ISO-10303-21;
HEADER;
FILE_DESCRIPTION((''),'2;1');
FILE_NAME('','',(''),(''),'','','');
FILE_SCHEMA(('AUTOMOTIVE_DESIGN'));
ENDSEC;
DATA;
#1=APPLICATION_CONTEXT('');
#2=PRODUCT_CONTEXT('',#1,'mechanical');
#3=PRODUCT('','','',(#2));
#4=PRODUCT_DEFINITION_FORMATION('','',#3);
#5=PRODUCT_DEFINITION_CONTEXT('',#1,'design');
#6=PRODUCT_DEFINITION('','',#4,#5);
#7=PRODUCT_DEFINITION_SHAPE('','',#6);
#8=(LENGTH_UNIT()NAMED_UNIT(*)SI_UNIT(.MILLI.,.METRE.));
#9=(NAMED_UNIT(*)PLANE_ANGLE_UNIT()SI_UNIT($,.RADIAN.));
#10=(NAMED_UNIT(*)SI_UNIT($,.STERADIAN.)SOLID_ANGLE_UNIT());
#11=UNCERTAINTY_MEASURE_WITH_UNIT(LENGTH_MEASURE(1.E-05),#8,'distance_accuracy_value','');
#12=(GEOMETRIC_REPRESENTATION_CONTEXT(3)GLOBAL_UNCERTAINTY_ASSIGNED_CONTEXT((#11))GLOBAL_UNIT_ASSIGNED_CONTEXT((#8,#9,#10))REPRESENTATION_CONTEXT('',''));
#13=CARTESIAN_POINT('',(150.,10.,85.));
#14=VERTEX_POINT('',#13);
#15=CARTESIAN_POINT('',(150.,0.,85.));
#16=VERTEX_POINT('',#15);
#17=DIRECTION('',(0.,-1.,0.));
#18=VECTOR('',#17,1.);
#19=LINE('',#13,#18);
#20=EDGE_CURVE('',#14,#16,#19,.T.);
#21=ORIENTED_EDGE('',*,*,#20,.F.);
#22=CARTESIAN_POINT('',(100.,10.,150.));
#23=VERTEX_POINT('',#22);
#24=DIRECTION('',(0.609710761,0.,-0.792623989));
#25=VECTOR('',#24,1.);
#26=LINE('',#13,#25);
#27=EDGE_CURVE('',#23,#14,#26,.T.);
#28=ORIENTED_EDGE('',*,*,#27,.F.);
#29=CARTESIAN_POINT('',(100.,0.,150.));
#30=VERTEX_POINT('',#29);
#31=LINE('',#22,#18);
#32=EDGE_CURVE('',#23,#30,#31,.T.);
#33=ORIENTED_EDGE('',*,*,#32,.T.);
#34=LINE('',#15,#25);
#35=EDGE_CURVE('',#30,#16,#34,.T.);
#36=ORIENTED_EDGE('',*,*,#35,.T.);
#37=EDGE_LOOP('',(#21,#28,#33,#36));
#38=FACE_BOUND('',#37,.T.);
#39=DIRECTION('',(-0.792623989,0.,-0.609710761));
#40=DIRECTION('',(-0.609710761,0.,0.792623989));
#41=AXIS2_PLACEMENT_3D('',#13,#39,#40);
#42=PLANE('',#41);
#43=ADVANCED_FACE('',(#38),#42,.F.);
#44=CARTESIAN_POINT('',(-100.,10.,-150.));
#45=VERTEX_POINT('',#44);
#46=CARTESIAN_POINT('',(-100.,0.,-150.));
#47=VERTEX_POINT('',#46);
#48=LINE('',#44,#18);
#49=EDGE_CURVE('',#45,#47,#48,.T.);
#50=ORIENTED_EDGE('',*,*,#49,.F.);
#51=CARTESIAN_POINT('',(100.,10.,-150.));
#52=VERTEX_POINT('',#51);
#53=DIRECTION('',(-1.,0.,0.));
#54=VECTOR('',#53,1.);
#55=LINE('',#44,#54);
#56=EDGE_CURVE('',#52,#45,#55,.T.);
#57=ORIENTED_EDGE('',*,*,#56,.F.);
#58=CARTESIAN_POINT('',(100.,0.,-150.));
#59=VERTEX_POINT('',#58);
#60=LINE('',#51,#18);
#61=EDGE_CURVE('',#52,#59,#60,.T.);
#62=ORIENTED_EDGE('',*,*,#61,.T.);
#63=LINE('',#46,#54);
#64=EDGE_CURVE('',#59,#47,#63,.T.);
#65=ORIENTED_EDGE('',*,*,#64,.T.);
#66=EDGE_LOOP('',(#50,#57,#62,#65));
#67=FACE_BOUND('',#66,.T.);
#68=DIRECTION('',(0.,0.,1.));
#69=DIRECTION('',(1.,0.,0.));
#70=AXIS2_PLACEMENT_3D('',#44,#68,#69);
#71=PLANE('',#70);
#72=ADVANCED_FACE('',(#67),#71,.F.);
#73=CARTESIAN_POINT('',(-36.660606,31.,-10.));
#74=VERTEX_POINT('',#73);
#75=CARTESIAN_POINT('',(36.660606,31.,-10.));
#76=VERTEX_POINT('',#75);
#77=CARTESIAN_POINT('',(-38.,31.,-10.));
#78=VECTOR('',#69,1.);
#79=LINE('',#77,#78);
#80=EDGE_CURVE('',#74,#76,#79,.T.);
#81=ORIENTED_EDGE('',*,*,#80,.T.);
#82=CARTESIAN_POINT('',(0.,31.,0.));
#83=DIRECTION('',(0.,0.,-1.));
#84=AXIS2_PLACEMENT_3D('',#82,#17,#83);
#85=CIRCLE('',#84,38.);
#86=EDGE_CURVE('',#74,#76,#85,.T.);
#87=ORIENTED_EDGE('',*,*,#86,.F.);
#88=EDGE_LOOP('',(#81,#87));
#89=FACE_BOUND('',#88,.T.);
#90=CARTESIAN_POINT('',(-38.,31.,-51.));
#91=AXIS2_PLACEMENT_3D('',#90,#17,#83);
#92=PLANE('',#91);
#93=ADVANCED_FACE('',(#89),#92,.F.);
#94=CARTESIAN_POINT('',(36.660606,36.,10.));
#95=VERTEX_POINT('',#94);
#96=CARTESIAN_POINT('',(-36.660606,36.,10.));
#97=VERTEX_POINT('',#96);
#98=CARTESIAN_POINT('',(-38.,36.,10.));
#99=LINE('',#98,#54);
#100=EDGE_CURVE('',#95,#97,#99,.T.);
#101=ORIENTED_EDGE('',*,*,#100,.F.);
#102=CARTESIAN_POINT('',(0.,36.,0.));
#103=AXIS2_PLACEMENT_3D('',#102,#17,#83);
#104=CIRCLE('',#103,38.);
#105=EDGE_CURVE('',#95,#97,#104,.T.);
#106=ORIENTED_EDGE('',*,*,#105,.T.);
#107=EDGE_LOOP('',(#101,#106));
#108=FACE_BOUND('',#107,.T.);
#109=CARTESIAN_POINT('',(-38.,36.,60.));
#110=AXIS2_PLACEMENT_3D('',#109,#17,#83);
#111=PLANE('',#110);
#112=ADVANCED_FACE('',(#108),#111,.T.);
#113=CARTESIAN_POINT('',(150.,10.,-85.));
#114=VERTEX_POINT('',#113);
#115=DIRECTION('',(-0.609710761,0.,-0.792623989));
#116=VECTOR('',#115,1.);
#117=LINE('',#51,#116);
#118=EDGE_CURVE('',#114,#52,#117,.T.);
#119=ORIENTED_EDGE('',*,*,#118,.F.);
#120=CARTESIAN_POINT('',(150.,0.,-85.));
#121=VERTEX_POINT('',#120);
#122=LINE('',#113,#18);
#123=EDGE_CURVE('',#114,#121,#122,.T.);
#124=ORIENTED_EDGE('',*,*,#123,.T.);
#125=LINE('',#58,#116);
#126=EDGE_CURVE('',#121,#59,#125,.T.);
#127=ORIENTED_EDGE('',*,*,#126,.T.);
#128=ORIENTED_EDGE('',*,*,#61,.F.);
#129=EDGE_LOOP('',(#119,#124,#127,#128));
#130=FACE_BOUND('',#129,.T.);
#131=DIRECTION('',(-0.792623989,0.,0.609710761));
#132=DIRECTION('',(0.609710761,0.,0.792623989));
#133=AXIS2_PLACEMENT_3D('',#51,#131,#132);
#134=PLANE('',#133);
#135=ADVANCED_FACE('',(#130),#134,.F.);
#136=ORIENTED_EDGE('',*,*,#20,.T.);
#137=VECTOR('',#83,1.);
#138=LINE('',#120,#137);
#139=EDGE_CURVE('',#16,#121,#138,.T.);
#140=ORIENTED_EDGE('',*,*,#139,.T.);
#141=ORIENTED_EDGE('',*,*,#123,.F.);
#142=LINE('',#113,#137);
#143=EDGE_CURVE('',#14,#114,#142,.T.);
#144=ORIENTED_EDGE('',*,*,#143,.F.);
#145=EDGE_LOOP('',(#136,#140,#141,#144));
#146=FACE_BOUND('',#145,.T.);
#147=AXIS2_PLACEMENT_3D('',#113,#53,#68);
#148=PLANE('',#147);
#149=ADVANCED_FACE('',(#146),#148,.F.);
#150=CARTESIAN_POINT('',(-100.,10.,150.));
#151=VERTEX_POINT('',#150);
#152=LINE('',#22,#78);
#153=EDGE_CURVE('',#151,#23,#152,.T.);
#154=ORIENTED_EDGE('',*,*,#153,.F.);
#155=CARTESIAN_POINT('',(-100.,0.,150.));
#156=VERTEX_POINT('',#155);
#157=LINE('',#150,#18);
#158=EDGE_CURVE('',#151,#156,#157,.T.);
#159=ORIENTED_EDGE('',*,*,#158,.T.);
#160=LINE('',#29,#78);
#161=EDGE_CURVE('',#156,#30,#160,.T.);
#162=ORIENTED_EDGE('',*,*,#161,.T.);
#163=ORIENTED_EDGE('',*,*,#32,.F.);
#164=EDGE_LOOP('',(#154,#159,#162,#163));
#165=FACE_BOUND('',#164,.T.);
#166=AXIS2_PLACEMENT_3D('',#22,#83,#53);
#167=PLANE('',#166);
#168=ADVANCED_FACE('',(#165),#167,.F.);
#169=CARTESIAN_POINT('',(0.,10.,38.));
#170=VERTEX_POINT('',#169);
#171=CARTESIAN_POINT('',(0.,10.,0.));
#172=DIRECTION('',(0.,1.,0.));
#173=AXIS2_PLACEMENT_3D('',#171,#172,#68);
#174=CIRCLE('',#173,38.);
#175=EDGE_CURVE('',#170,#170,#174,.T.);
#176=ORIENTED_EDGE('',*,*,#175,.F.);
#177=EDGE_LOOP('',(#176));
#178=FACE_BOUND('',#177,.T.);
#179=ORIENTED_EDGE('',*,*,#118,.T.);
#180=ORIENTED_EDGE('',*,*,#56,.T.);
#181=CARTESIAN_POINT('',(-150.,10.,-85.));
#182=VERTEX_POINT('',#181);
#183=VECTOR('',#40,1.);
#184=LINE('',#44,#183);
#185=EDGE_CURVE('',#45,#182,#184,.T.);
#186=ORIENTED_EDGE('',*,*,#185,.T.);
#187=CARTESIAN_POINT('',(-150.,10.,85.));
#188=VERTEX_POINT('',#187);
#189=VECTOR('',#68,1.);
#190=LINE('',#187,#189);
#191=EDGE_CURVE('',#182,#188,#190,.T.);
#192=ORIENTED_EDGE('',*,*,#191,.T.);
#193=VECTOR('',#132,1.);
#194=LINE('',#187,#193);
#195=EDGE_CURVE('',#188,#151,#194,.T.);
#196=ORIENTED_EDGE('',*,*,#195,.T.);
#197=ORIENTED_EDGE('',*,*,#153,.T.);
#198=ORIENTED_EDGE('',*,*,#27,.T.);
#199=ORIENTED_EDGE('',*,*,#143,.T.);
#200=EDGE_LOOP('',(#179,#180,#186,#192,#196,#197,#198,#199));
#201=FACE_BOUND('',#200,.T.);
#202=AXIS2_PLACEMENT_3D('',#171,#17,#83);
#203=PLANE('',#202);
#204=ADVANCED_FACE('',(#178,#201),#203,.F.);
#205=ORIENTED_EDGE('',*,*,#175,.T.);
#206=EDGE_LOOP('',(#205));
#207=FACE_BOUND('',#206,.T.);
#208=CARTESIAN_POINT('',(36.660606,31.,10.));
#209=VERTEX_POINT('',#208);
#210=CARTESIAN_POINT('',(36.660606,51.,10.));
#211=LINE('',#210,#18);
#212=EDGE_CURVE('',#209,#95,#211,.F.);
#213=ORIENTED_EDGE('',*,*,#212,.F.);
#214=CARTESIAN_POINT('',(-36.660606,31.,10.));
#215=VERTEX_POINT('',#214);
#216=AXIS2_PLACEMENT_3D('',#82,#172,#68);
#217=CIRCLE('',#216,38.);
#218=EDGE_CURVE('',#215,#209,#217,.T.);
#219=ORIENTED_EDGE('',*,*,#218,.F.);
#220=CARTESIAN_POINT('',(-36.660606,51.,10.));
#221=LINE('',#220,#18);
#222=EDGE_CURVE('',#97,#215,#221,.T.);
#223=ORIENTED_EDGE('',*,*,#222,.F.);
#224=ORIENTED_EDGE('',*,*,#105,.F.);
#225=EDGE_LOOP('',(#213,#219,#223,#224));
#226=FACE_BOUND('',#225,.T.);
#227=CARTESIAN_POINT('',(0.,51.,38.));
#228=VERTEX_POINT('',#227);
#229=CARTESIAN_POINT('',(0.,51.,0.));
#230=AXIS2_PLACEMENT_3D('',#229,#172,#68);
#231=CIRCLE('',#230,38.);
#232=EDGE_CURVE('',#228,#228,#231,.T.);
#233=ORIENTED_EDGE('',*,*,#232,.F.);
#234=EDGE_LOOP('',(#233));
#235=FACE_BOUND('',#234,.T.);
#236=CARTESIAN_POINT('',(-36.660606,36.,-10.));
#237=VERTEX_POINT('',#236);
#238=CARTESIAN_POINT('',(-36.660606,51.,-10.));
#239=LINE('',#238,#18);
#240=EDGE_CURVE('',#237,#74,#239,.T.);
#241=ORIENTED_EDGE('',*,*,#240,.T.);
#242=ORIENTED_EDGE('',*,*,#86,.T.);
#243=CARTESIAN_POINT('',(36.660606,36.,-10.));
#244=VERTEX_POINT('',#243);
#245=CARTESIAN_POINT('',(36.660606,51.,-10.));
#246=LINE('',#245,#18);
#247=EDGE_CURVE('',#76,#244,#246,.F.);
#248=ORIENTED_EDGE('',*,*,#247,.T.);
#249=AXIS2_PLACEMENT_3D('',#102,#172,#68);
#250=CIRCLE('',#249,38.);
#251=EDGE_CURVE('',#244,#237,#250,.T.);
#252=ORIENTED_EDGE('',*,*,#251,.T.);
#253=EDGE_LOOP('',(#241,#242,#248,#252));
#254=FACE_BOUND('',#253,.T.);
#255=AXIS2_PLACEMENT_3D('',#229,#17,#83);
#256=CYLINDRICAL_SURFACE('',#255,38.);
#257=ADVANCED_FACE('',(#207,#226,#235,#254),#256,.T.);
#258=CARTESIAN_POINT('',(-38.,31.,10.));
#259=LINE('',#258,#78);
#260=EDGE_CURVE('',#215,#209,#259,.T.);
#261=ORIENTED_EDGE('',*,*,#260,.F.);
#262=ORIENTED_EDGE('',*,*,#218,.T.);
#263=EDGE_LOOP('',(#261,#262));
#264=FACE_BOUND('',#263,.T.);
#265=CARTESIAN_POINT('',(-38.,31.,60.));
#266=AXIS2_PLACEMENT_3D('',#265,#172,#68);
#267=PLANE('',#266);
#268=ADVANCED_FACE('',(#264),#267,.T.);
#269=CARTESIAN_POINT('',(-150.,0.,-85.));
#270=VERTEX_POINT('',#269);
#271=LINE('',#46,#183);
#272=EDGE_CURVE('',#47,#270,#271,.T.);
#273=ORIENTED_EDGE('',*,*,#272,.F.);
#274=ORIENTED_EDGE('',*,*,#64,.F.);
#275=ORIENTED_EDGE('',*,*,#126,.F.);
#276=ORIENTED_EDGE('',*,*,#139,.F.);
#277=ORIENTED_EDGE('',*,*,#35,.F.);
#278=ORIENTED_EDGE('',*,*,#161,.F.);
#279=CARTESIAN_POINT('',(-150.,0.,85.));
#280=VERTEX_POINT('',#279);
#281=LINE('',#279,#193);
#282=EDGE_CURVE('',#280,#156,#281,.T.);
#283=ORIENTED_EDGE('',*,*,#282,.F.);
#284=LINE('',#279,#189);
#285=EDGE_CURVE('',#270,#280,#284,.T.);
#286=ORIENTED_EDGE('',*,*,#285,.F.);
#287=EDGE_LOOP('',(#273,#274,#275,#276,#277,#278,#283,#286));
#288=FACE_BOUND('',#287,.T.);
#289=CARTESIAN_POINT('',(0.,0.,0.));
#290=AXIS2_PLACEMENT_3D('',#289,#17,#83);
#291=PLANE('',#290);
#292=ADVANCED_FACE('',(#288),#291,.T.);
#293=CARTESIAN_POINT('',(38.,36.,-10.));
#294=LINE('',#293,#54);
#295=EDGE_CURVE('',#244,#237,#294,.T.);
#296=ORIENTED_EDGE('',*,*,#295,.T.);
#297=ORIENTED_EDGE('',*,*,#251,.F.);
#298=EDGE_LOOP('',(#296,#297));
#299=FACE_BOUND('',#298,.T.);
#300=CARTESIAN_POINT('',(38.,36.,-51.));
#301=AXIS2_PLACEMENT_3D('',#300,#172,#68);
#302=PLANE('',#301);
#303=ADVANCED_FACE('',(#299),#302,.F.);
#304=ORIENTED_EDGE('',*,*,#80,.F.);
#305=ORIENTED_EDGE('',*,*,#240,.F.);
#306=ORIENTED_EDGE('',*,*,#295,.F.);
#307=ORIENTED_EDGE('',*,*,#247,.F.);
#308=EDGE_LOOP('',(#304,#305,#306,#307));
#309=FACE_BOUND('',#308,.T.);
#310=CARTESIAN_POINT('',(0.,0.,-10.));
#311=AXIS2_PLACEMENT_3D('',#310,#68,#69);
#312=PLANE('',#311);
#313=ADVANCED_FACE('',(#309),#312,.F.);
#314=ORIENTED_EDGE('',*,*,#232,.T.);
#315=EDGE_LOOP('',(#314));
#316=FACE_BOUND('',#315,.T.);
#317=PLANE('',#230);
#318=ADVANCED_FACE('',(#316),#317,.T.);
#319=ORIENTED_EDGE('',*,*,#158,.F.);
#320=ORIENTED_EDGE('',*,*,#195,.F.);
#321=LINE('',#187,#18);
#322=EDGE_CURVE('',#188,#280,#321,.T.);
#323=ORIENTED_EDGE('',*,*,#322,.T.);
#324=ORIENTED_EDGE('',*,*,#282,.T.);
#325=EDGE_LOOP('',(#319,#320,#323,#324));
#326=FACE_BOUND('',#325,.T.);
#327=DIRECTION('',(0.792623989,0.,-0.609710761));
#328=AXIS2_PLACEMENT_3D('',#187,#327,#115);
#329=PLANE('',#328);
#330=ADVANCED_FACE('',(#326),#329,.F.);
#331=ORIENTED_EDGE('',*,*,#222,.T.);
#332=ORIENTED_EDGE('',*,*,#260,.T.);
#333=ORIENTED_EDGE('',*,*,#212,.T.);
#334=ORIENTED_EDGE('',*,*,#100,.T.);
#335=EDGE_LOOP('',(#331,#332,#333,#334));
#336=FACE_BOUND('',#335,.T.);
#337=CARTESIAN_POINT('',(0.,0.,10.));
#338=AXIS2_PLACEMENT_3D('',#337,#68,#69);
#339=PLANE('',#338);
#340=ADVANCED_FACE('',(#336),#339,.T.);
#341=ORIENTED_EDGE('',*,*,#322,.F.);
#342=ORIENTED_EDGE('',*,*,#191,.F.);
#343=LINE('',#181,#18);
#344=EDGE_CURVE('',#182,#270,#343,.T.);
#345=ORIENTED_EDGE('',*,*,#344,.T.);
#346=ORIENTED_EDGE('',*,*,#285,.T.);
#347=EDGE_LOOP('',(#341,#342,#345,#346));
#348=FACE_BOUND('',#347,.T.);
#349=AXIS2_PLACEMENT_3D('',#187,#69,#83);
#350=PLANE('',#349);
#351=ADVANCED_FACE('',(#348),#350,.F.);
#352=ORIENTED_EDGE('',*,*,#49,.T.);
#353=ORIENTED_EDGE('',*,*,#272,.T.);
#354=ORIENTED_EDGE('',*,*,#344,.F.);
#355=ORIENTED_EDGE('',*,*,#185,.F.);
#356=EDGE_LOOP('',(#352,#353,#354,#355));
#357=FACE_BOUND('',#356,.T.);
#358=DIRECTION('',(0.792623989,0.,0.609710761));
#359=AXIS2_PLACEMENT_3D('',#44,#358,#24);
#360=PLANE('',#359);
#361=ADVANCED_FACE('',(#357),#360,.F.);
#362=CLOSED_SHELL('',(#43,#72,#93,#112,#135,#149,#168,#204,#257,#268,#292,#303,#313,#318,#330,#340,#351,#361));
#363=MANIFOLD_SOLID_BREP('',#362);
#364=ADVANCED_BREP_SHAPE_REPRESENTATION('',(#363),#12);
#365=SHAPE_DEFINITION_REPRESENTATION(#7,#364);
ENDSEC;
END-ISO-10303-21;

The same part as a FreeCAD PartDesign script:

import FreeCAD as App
import Part
import Sketcher


def add_polygon(sketch, points):
    """Adds a closed chain of lines whose ends are joined by coincident constraints."""
    first, n = sketch.GeometryCount, len(points)
    for a, b in zip(points, points[1:] + points[:1]):
        sketch.addGeometry(Part.LineSegment(App.Vector(*a, 0), App.Vector(*b, 0)), False)
    for i in range(n):
        sketch.addConstraint(Sketcher.Constraint("Coincident", first + i, 2, first + (i + 1) % n, 1))

doc = App.newDocument("Part")
body = doc.addObject("PartDesign::Body", "Body")

# Sketch on XZ plane
sketch1 = body.newObject("Sketcher::SketchObject", "Sketch")
sketch1.AttachmentSupport = (doc.getObject("XZ_Plane"), [""])
sketch1.MapMode = "FlatFace"
add_polygon(sketch1, [(-100, -150), (-150, -85), (-150, 85), (-100, 150), (100, 150), (150, 85), (150, -85), (100, -150)])  # lines 0-7
sketch1.addConstraint(Sketcher.Constraint("Vertical", 1))
sketch1.addConstraint(Sketcher.Constraint("Horizontal", 3))
sketch1.addConstraint(Sketcher.Constraint("Vertical", 5))
sketch1.addConstraint(Sketcher.Constraint("Horizontal", 7))
sketch1.addConstraint(Sketcher.Constraint("Symmetric", 0, 2, 4, 2, -1, 1))
sketch1.addConstraint(Sketcher.Constraint("Symmetric", 2, 2, 6, 2, -1, 1))
sketch1.addConstraint(Sketcher.Constraint("Parallel", 0, 4))
sketch1.addConstraint(Sketcher.Constraint("Parallel", 2, 6))
sketch1.addConstraint(Sketcher.Constraint("Horizontal", 1, 2, 4, 2))
sketch1.addConstraint(Sketcher.Constraint("Vertical", 3, 2, 6, 2))
sketch1.addConstraint(Sketcher.Constraint("DistanceX", 3, 1, 3, 2, 200.0))
sketch1.addConstraint(Sketcher.Constraint("DistanceY", 1, 1, 1, 2, 170.0))
sketch1.addConstraint(Sketcher.Constraint("DistanceX", 0, 2, -1, 1, 150.0))
sketch1.addConstraint(Sketcher.Constraint("DistanceY", -1, 1, 2, 2, 150.0))
pad1 = body.newObject("PartDesign::Pad", "Pad")
pad1.Profile = sketch1
pad1.Length = 10
pad1.Reversed = True

# Sketch on XZ plane
sketch2 = body.newObject("Sketcher::SketchObject", "Sketch001")
sketch2.AttachmentSupport = (doc.getObject("XZ_Plane"), [""])
sketch2.MapMode = "FlatFace"
sketch2.AttachmentOffset = App.Placement(App.Vector(0, 0, -10), App.Rotation())
sketch2.addGeometry(Part.Circle(App.Vector(0, 0, 0), App.Vector(0, 0, 1), 38), False)
sketch2.addConstraint(Sketcher.Constraint("Coincident", 0, 3, -1, 1))
sketch2.addConstraint(Sketcher.Constraint("Diameter", 0, 76.0))
pad2 = body.newObject("PartDesign::Pad", "Pad001")
pad2.Profile = sketch2
pad2.Length = 41
pad2.Reversed = True

# Sketch on XY plane
sketch3 = body.newObject("Sketcher::SketchObject", "Sketch002")
sketch3.AttachmentSupport = (doc.getObject("XY_Plane"), [""])
sketch3.MapMode = "FlatFace"
sketch3.AttachmentOffset = App.Placement(App.Vector(0, 0, 10), App.Rotation())
add_polygon(sketch3, [(-38, 36), (-38, 31), (38, 31), (38, 36)])  # lines 0-3
sketch3.addConstraint(Sketcher.Constraint("Vertical", 0))
sketch3.addConstraint(Sketcher.Constraint("Horizontal", 1))
sketch3.addConstraint(Sketcher.Constraint("Vertical", 2))
sketch3.addConstraint(Sketcher.Constraint("Horizontal", 3))
sketch3.addConstraint(Sketcher.Constraint("DistanceX", 1, 1, 1, 2, 76.0))
sketch3.addConstraint(Sketcher.Constraint("DistanceY", 0, 2, 0, 1, 5.0))
sketch3.addConstraint(Sketcher.Constraint("DistanceX", 0, 2, -1, 1, 38.0))
sketch3.addConstraint(Sketcher.Constraint("DistanceY", -1, 1, 0, 2, 31.0))
pocket1 = body.newObject("PartDesign::Pocket", "Pocket")
pocket1.Profile = sketch3
pocket1.Length = 50
pocket1.Reversed = True

# Sketch on XY plane
sketch4 = body.newObject("Sketcher::SketchObject", "Sketch003")
sketch4.AttachmentSupport = (doc.getObject("XY_Plane"), [""])
sketch4.MapMode = "FlatFace"
sketch4.AttachmentOffset = App.Placement(App.Vector(0, 0, -10), App.Rotation())
add_polygon(sketch4, [(-38, 36), (-38, 31), (38, 31), (38, 36)])  # lines 0-3
sketch4.addConstraint(Sketcher.Constraint("Vertical", 0))
sketch4.addConstraint(Sketcher.Constraint("Horizontal", 1))
sketch4.addConstraint(Sketcher.Constraint("Vertical", 2))
sketch4.addConstraint(Sketcher.Constraint("Horizontal", 3))
sketch4.addConstraint(Sketcher.Constraint("DistanceX", 1, 1, 1, 2, 76.0))
sketch4.addConstraint(Sketcher.Constraint("DistanceY", 0, 2, 0, 1, 5.0))
sketch4.addConstraint(Sketcher.Constraint("DistanceX", 0, 2, -1, 1, 38.0))
sketch4.addConstraint(Sketcher.Constraint("DistanceY", -1, 1, 0, 2, 31.0))
pocket2 = body.newObject("PartDesign::Pocket", "Pocket001")
pocket2.Profile = sketch4
pocket2.Length = 41

doc.recompute()
